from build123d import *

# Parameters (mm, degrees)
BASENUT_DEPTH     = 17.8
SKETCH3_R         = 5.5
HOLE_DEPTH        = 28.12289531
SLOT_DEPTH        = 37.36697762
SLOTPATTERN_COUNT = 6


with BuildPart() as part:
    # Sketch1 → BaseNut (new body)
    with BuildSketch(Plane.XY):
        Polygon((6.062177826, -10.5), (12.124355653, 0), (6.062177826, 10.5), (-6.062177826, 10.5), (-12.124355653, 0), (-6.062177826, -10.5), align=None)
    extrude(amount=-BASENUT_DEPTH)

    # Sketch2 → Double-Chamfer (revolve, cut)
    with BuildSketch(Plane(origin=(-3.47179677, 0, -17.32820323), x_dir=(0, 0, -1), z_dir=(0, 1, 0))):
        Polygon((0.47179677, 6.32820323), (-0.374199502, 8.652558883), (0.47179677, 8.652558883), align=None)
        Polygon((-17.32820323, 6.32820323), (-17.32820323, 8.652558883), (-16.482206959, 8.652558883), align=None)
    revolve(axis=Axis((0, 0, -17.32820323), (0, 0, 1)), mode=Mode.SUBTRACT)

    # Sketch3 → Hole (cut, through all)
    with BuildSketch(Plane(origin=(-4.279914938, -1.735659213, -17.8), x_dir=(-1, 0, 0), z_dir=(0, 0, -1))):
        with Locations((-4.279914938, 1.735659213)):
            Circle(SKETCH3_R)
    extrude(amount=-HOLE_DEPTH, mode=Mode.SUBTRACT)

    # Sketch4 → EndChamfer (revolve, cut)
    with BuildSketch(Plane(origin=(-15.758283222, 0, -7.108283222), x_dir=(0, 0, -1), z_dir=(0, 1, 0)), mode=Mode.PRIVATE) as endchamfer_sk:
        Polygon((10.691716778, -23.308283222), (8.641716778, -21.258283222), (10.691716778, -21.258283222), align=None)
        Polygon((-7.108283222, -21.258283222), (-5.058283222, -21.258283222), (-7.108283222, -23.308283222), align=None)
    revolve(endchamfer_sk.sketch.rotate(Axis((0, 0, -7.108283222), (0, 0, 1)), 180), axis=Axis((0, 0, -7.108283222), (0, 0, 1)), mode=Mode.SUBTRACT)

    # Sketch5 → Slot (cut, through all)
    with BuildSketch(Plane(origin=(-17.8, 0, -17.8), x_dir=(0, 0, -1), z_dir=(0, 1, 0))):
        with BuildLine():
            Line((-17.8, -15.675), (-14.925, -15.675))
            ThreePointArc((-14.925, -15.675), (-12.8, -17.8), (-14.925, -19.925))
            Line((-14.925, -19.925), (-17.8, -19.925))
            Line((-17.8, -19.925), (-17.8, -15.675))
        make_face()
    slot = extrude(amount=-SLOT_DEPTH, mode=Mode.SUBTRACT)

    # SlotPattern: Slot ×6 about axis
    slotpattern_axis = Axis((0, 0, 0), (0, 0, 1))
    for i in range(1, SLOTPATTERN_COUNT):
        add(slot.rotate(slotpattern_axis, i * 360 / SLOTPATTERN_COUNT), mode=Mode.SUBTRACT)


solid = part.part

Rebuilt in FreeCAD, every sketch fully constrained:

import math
import FreeCAD as App
import Part
import Sketcher
from FreeCAD import Vector
Q = App.Units.Quantity

doc = App.newDocument("Part")
body = doc.addObject("PartDesign::Body", "Body")

sketch1 = body.newObject("Sketcher::SketchObject", "Sketch")
sketch1.AttachmentSupport = (doc.getObject("XY_Plane"), [""])
sketch1.MapMode = "FlatFace"
sketch1.addGeometry(Part.LineSegment(Vector(6.062178, -10.5, 0), Vector(12.124356, 0, 0)), False)
sketch1.addGeometry(Part.LineSegment(Vector(12.124356, 0, 0), Vector(6.062178, 10.5, 0)), False)
sketch1.addGeometry(Part.LineSegment(Vector(6.062178, 10.5, 0), Vector(-6.062178, 10.5, 0)), False)
sketch1.addGeometry(Part.LineSegment(Vector(-6.062178, 10.5, 0), Vector(-12.124356, 0, 0)), False)
sketch1.addGeometry(Part.LineSegment(Vector(-12.124356, 0, 0), Vector(-6.062178, -10.5, 0)), False)
sketch1.addGeometry(Part.LineSegment(Vector(-6.062178, -10.5, 0), Vector(6.062178, -10.5, 0)), False)
sketch1.addConstraint(Sketcher.Constraint("Coincident", 0, 2, 1, 1))
sketch1.addConstraint(Sketcher.Constraint("Coincident", 1, 2, 2, 1))
sketch1.addConstraint(Sketcher.Constraint("Coincident", 2, 2, 3, 1))
sketch1.addConstraint(Sketcher.Constraint("Coincident", 3, 2, 4, 1))
sketch1.addConstraint(Sketcher.Constraint("Coincident", 4, 2, 5, 1))
sketch1.addConstraint(Sketcher.Constraint("Coincident", 5, 2, 0, 1))
sketch1.addConstraint(Sketcher.Constraint("Horizontal", 2))
sketch1.addConstraint(Sketcher.Constraint("Horizontal", 5))
sketch1.addConstraint(Sketcher.Constraint("Symmetric", 0, 2, 3, 2, -1, 1))
sketch1.addConstraint(Sketcher.Constraint("Symmetric", 1, 2, 4, 2, -1, 1))
sketch1.addConstraint(Sketcher.Constraint("PointOnObject", 0, 2, -1))
sketch1.addConstraint(Sketcher.Constraint("Parallel", 0, 3))
sketch1.addConstraint(Sketcher.Constraint("Vertical", 2, 2, 4, 2))
sketch1.addConstraint(Sketcher.Constraint("Angle", 0, Q("60 deg")))
sketch1.addConstraint(Sketcher.Constraint("DistanceY", 4, 2, 2, 2, Q("21 mm")))
sketch1.addConstraint(Sketcher.Constraint("DistanceX", 2, 2, 2, 1, Q("12.124356 mm")))
pad1 = body.newObject("PartDesign::Pad", "Pad")
pad1.Profile = sketch1
pad1.Length = 17.8
pad1.Reversed = True

sketch2 = body.newObject("Sketcher::SketchObject", "Sketch001")
sketch2.AttachmentSupport = (doc.getObject("XZ_Plane"), [""])
sketch2.MapMode = "FlatFace"
sketch2.addGeometry(Part.LineSegment(Vector(-12.124356, -16.954004, 0), Vector(-9.8, -17.8, 0)), False)
sketch2.addGeometry(Part.LineSegment(Vector(-9.8, -17.8, 0), Vector(-12.124356, -17.8, 0)), False)
sketch2.addGeometry(Part.LineSegment(Vector(-12.124356, -17.8, 0), Vector(-12.124356, -16.954004, 0)), False)
sketch2.addGeometry(Part.LineSegment(Vector(-12.124356, 0, 0), Vector(-9.8, 0, 0)), False)
sketch2.addGeometry(Part.LineSegment(Vector(-9.8, 0, 0), Vector(-12.124356, -0.845996, 0)), False)
sketch2.addGeometry(Part.LineSegment(Vector(-12.124356, -0.845996, 0), Vector(-12.124356, 0, 0)), False)
sketch2.addConstraint(Sketcher.Constraint("Coincident", 0, 2, 1, 1))
sketch2.addConstraint(Sketcher.Constraint("Coincident", 1, 2, 2, 1))
sketch2.addConstraint(Sketcher.Constraint("Coincident", 2, 2, 0, 1))
sketch2.addConstraint(Sketcher.Constraint("Coincident", 3, 2, 4, 1))
sketch2.addConstraint(Sketcher.Constraint("Coincident", 4, 2, 5, 1))
sketch2.addConstraint(Sketcher.Constraint("Coincident", 5, 2, 3, 1))
sketch2.addConstraint(Sketcher.Constraint("Horizontal", 1))
sketch2.addConstraint(Sketcher.Constraint("Vertical", 2))
sketch2.addConstraint(Sketcher.Constraint("Horizontal", 3))
sketch2.addConstraint(Sketcher.Constraint("Vertical", 5))
sketch2.addConstraint(Sketcher.Constraint("PointOnObject", 3, 2, -1))
sketch2.addConstraint(Sketcher.Constraint("Vertical", 0, 2, 3, 2))
sketch2.addConstraint(Sketcher.Constraint("Vertical", 2, 2, 4, 2))
sketch2.addConstraint(Sketcher.Constraint("Equal", 2, 5))
sketch2.addConstraint(Sketcher.Constraint("Angle", 0, Q("-20 deg")))
sketch2.addConstraint(Sketcher.Constraint("DistanceX", 0, 2, -1, 1, Q("9.8 mm")))
sketch2.addConstraint(Sketcher.Constraint("DistanceY", 0, 2, -1, 1, Q("17.8 mm")))
sketch2.addConstraint(Sketcher.Constraint("DistanceX", 1, 2, 1, 1, Q("2.324356 mm")))
groove = body.newObject("PartDesign::Groove", "Groove")
groove.Profile = sketch2
groove.ReferenceAxis = (sketch2, ["V_Axis"])
groove.Angle = 360

sketch3 = body.newObject("Sketcher::SketchObject", "Sketch002")
sketch3.AttachmentSupport = (doc.getObject("XY_Plane"), [""])
sketch3.MapMode = "FlatFace"
sketch3.AttachmentOffset = App.Placement(Vector(0, 0, -17.8), App.Rotation())
sketch3.addGeometry(Part.Circle(Vector(0, 0, 0), Vector(0, 0, 1), 5.5), False)
sketch3.addConstraint(Sketcher.Constraint("Coincident", 0, 3, -1, 1))
sketch3.addConstraint(Sketcher.Constraint("Diameter", 0, Q("11 mm")))
pocket1 = body.newObject("PartDesign::Pocket", "Pocket")
pocket1.Profile = sketch3
pocket1.Type = "ThroughAll"
pocket1.Reversed = True

sketch4 = body.newObject("Sketcher::SketchObject", "Sketch003")
sketch4.AttachmentSupport = (doc.getObject("XZ_Plane"), [""])
sketch4.MapMode = "FlatFace"
sketch4.addGeometry(Part.LineSegment(Vector(5.5, -15.75, 0), Vector(7.55, -17.8, 0)), False)
sketch4.addGeometry(Part.LineSegment(Vector(7.55, -17.8, 0), Vector(5.5, -17.8, 0)), False)
sketch4.addGeometry(Part.LineSegment(Vector(5.5, -17.8, 0), Vector(5.5, -15.75, 0)), False)
sketch4.addGeometry(Part.LineSegment(Vector(5.5, -2.05, 0), Vector(5.5, 0, 0)), False)
sketch4.addGeometry(Part.LineSegment(Vector(5.5, 0, 0), Vector(7.55, 0, 0)), False)
sketch4.addGeometry(Part.LineSegment(Vector(7.55, 0, 0), Vector(5.5, -2.05, 0)), False)
sketch4.addConstraint(Sketcher.Constraint("Coincident", 0, 2, 1, 1))
sketch4.addConstraint(Sketcher.Constraint("Coincident", 1, 2, 2, 1))
sketch4.addConstraint(Sketcher.Constraint("Coincident", 2, 2, 0, 1))
sketch4.addConstraint(Sketcher.Constraint("Coincident", 3, 2, 4, 1))
sketch4.addConstraint(Sketcher.Constraint("Coincident", 4, 2, 5, 1))
sketch4.addConstraint(Sketcher.Constraint("Coincident", 5, 2, 3, 1))
sketch4.addConstraint(Sketcher.Constraint("Horizontal", 1))
sketch4.addConstraint(Sketcher.Constraint("Vertical", 2))
sketch4.addConstraint(Sketcher.Constraint("Vertical", 3))
sketch4.addConstraint(Sketcher.Constraint("Horizontal", 4))
sketch4.addConstraint(Sketcher.Constraint("PointOnObject", 3, 2, -1))
sketch4.addConstraint(Sketcher.Constraint("Perpendicular", 0, 5))
sketch4.addConstraint(Sketcher.Constraint("Vertical", 2, 2, 3, 2))
sketch4.addConstraint(Sketcher.Constraint("Vertical", 0, 2, 4, 2))
sketch4.addConstraint(Sketcher.Constraint("Equal", 4, 2))
sketch4.addConstraint(Sketcher.Constraint("DistanceX", 1, 2, 1, 1, Q("2.05 mm")))
sketch4.addConstraint(Sketcher.Constraint("DistanceY", 0, 2, -1, 1, Q("17.8 mm")))
sketch4.addConstraint(Sketcher.Constraint("DistanceX", -1, 1, 1, 2, Q("5.5 mm")))
groove2 = body.newObject("PartDesign::Groove", "Groove001")
groove2.Profile = sketch4
groove2.ReferenceAxis = (sketch4, ["V_Axis"])
groove2.Angle = 360

sketch5 = body.newObject("Sketcher::SketchObject", "Sketch004")
sketch5.AttachmentSupport = (doc.getObject("XZ_Plane"), [""])
sketch5.MapMode = "FlatFace"
sketch5.addGeometry(Part.LineSegment(Vector(-2.125, -2.875, 0), Vector(-2.125, 0, 0)), False)
sketch5.addGeometry(Part.LineSegment(Vector(-2.125, 0, 0), Vector(2.125, 0, 0)), False)
sketch5.addGeometry(Part.LineSegment(Vector(2.125, 0, 0), Vector(2.125, -2.875, 0)), False)
sketch5.addGeometry(Part.ArcOfCircle(Part.Circle(Vector(0, -2.875, 0), Vector(0, 0, 1), 2.125), math.radians(180), math.radians(360)), False)
sketch5.addConstraint(Sketcher.Constraint("Coincident", 0, 2, 1, 1))
sketch5.addConstraint(Sketcher.Constraint("Coincident", 1, 2, 2, 1))
sketch5.addConstraint(Sketcher.Constraint("Tangent", 2, 2, 3, 2))
sketch5.addConstraint(Sketcher.Constraint("Tangent", 3, 1, 0, 1))
sketch5.addConstraint(Sketcher.Constraint("Vertical", 0))
sketch5.addConstraint(Sketcher.Constraint("Horizontal", 1))
sketch5.addConstraint(Sketcher.Constraint("Vertical", 2))
sketch5.addConstraint(Sketcher.Constraint("Symmetric", 0, 2, 1, 2, -1, 1))
sketch5.addConstraint(Sketcher.Constraint("Radius", 3, Q("2.125 mm")))
sketch5.addConstraint(Sketcher.Constraint("DistanceY", 0, 1, 0, 2, Q("2.875 mm")))
pocket2 = body.newObject("PartDesign::Pocket", "Pocket001")
pocket2.Profile = sketch5
pocket2.Type = "ThroughAll"
pocket2.Reversed = True
doc.recompute()

polarpattern = body.newObject("PartDesign::PolarPattern", "PolarPattern")
polarpattern.Originals = [pocket2]
polarpattern.Axis = (doc.getObject("Z_Axis"), [""])
polarpattern.Angle = 360
polarpattern.Occurrences = 6
body.Tip = polarpattern

doc.recompute()
